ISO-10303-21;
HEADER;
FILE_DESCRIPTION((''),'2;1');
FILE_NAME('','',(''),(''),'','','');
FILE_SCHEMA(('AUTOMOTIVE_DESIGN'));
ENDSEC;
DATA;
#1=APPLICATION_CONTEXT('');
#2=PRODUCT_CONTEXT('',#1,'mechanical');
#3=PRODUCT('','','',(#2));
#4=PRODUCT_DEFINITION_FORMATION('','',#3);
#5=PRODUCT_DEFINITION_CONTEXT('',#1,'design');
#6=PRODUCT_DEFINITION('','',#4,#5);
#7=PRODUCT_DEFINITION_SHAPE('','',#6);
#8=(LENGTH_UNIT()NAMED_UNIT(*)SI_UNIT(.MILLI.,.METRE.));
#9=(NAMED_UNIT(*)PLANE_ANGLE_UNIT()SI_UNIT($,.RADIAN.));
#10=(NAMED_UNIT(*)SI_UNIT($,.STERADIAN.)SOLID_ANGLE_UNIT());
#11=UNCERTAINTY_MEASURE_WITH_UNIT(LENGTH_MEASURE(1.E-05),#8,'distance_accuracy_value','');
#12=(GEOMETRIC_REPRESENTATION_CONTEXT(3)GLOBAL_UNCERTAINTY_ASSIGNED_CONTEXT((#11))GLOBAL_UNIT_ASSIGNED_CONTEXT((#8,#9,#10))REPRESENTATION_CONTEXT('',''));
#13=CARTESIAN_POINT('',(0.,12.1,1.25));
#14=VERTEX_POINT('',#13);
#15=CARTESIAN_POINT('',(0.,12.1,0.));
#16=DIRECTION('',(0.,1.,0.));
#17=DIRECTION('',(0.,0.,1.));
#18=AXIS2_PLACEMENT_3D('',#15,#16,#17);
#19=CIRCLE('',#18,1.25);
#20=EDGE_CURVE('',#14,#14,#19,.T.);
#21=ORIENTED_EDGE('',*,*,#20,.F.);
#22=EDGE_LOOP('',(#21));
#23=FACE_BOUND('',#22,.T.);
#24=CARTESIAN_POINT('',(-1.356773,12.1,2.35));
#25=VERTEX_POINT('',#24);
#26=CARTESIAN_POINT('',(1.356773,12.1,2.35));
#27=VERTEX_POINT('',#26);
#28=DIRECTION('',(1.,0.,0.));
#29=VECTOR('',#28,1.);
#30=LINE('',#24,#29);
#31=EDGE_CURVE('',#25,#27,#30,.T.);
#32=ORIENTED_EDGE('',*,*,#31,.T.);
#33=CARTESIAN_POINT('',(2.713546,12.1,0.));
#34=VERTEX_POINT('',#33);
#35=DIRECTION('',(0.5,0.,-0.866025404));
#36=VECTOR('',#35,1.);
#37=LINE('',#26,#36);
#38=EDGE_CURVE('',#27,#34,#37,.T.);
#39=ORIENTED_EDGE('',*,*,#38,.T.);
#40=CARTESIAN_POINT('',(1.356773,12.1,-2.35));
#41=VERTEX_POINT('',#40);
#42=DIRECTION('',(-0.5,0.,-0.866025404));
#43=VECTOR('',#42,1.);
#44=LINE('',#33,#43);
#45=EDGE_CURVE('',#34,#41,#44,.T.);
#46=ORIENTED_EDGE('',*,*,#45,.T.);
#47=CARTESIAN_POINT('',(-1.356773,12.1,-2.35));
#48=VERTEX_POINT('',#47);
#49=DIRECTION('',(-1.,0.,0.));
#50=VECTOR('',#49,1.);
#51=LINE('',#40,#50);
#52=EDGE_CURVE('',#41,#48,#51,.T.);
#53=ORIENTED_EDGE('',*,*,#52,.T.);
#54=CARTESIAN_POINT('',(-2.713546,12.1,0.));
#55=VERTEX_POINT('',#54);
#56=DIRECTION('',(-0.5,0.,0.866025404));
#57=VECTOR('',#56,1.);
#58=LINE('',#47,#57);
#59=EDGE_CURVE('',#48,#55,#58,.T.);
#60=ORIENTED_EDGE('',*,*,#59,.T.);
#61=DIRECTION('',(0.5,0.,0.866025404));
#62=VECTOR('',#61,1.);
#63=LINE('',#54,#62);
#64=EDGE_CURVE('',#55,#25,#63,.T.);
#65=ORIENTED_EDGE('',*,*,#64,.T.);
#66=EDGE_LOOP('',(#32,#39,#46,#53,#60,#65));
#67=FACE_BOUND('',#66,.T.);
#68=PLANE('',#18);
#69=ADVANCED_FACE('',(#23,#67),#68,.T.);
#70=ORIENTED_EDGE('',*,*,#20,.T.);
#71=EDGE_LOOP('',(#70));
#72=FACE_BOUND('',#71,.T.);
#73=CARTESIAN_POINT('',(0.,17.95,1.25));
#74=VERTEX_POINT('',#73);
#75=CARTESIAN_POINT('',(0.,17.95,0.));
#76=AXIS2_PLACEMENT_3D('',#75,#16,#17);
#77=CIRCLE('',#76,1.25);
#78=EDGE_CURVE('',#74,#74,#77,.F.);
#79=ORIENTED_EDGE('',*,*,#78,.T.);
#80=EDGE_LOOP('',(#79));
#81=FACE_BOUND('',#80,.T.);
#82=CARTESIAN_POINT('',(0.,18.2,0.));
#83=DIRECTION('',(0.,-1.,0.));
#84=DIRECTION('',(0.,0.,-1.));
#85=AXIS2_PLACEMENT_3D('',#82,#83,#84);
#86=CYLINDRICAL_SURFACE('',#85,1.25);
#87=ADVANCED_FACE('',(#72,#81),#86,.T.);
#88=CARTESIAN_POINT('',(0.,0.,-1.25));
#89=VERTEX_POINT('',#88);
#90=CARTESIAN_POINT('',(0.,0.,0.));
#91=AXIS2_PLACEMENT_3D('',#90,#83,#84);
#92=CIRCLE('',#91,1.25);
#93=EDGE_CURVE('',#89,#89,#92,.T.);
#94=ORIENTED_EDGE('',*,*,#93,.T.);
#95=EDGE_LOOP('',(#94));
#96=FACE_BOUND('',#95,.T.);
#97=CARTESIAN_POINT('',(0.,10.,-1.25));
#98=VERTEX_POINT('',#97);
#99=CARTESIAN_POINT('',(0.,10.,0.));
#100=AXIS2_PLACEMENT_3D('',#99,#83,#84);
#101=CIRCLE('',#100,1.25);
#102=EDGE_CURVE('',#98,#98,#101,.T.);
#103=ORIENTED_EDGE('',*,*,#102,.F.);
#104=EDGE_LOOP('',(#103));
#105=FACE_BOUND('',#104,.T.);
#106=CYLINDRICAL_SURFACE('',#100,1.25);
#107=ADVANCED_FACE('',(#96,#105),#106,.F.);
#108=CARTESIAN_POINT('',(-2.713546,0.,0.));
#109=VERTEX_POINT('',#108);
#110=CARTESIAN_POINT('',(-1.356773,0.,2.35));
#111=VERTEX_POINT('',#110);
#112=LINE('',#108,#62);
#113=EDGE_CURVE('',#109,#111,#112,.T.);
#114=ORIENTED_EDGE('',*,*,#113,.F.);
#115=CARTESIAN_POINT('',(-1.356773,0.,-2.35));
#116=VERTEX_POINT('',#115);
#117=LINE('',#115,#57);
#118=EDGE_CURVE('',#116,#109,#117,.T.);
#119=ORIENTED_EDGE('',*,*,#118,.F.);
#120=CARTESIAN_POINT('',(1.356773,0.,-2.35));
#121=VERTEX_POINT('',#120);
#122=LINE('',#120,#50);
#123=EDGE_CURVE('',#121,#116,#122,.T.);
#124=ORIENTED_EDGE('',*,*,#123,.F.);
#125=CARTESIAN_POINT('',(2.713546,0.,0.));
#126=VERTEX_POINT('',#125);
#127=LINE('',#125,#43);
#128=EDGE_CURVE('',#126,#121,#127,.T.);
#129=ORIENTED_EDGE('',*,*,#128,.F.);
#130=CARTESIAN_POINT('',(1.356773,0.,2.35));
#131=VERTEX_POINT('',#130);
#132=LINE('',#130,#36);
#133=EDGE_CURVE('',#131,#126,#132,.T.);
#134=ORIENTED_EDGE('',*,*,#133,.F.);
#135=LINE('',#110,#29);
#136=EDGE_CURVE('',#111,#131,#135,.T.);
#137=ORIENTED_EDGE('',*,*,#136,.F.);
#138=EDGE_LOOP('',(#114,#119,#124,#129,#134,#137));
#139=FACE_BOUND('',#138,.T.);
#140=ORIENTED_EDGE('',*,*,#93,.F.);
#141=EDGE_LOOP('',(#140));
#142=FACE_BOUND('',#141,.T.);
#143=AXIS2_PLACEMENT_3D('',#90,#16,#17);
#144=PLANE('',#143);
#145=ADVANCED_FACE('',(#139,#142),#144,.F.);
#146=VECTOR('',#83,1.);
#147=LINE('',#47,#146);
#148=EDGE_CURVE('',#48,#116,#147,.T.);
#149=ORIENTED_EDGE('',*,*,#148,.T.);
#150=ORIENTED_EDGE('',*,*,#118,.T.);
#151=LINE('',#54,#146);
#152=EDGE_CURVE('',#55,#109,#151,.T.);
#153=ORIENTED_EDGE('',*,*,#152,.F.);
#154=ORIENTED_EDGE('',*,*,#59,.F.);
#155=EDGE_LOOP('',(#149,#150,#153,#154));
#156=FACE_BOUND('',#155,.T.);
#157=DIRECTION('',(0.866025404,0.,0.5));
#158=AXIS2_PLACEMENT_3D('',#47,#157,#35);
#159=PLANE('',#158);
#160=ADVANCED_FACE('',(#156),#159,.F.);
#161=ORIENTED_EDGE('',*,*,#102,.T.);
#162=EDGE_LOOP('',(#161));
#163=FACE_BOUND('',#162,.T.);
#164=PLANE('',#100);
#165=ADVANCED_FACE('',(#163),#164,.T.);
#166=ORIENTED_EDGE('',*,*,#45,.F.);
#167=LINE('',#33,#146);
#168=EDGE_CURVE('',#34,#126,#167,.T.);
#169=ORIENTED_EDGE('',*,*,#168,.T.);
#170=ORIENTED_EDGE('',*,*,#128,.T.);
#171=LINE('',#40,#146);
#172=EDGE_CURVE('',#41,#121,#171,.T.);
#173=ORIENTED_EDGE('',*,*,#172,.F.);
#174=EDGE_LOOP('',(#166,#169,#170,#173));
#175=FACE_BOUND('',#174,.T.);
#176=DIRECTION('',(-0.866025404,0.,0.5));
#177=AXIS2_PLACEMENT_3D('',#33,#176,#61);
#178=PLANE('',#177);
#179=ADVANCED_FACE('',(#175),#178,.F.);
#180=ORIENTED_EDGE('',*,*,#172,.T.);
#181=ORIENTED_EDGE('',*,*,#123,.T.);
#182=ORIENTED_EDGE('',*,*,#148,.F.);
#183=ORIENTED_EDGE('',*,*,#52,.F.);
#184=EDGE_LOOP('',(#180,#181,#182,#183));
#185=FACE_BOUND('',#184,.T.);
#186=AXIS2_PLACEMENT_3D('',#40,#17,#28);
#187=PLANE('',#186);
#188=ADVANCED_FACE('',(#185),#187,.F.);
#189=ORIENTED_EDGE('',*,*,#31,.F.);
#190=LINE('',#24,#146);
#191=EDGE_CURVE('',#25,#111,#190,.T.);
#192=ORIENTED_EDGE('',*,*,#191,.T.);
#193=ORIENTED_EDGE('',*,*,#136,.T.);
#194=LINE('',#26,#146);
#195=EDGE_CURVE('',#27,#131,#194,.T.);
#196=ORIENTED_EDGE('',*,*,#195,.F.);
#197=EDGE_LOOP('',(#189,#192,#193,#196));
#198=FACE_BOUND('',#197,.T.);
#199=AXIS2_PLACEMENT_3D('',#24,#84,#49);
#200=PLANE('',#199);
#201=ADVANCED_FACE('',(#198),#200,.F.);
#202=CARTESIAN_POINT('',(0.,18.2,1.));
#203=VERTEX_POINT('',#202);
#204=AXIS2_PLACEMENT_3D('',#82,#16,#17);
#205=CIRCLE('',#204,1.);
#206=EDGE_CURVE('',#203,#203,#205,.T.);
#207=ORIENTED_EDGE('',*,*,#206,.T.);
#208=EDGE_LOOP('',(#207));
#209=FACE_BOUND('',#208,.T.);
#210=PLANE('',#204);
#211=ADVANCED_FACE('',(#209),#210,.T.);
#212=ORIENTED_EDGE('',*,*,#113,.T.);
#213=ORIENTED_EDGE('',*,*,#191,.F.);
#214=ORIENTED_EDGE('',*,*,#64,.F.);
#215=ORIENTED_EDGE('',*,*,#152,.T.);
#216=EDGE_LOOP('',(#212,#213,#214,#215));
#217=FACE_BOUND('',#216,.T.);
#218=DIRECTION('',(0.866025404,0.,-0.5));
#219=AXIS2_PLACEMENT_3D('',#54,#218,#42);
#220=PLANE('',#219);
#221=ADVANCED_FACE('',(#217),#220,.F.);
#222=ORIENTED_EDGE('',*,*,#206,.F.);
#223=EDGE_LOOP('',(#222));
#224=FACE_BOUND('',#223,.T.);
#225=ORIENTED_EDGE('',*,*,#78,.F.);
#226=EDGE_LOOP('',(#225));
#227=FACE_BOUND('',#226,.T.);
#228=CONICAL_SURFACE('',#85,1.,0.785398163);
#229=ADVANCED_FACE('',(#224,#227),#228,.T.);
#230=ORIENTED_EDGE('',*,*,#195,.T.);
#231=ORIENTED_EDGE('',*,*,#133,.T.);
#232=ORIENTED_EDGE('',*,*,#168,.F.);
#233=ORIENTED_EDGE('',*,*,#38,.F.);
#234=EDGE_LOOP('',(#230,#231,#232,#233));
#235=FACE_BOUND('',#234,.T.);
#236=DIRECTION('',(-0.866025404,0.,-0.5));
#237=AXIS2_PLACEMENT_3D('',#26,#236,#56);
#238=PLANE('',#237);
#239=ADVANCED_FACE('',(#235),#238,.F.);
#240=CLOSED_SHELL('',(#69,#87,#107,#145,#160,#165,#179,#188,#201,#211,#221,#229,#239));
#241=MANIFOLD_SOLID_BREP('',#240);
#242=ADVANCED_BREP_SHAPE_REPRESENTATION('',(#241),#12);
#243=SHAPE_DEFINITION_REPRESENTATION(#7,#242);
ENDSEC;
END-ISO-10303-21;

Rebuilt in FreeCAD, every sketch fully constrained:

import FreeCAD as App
import Part
import Sketcher

V = App.Vector
Q = App.Units.Quantity


def edges_at(feature, points):
    """Names of the edges that pass closest to the given points."""
    edges = feature.Shape.Edges
    near = lambda p: min(range(len(edges)), key=lambda i: edges[i].distToShape(Part.Vertex(*p))[0])
    return sorted({f"Edge{near(p) + 1}" for p in points})

doc = App.newDocument("Part")
params = doc.addObject("Spreadsheet::Sheet", "Params")
for row, (alias, value) in enumerate([
    ("pad1_length", "12.1 mm"),
    ("sketch2_diameter", "2.5 mm"),
    ("pad2_length", "6.1 mm"),
    ("chamfer_size", "0.25 mm"),
    ("sketch3_diameter", "2.5 mm"),
    ("pocket1_length", "10 mm"),
], start=1):
    params.set(f"A{row}", alias)
    params.set(f"B{row}", "=" + value)
    params.setAlias(f"B{row}", alias)

body = doc.addObject("PartDesign::Body", "Body")

sketch1 = body.newObject("Sketcher::SketchObject", "Sketch")
sketch1.AttachmentSupport = (doc.getObject("XZ_Plane"), [""])
sketch1.MapMode = "FlatFace"
sketch1.addGeometry([
    Part.LineSegment(V(2.7, 0, 0), V(1.4, -2.4, 0)),
    Part.LineSegment(V(1.4, -2.4, 0), V(-1.4, -2.4, 0)),
    Part.LineSegment(V(-1.4, -2.4, 0), V(-2.7, 0, 0)),
    Part.LineSegment(V(-2.7, 0, 0), V(-1.4, 2.4, 0)),
    Part.LineSegment(V(-1.4, 2.4, 0), V(1.4, 2.4, 0)),
    Part.LineSegment(V(1.4, 2.4, 0), V(2.7, 0, 0)),
], False)
sketch1.addConstraint([
    Sketcher.Constraint("Coincident", 0, 2, 1, 1),
    Sketcher.Constraint("Coincident", 1, 2, 2, 1),
    Sketcher.Constraint("Coincident", 2, 2, 3, 1),
    Sketcher.Constraint("Coincident", 3, 2, 4, 1),
    Sketcher.Constraint("Coincident", 4, 2, 5, 1),
    Sketcher.Constraint("Coincident", 5, 2, 0, 1),
    Sketcher.Constraint("Horizontal", 1),
    Sketcher.Constraint("Horizontal", 4),
    Sketcher.Constraint("Symmetric", 0, 2, 3, 2, -1, 1),
    Sketcher.Constraint("Symmetric", 2, 2, 5, 2, -1, 1),
    Sketcher.Constraint("PointOnObject", 2, 2, -1),
    Sketcher.Constraint("Parallel", 2, 5),
    Sketcher.Constraint("Vertical", 1, 2, 3, 2),
    Sketcher.Constraint("Angle", 0, Q("-120 deg")),
    Sketcher.Constraint("DistanceY", 1, 2, 3, 2, Q("4.7 mm")),
    Sketcher.Constraint("DistanceX", 1, 2, 1, 1, Q("2.713546 mm")),
])
pad1 = body.newObject("PartDesign::Pad", "Pad")
pad1.Profile = sketch1
pad1.setExpression("Length", "Params.pad1_length")
pad1.Reversed = True

sketch2 = body.newObject("Sketcher::SketchObject", "Sketch001")
sketch2.AttachmentSupport = (doc.getObject("XZ_Plane"), [""])
sketch2.MapMode = "FlatFace"
sketch2.AttachmentOffset = App.Placement(V(0, 0, -12.1), App.Rotation())
sketch2.addGeometry(Part.Circle(V(0, 0, 0), V(0, 0, 1), 1.2), False)
sketch2.addConstraint([
    Sketcher.Constraint("Coincident", 0, 3, -1, 1),
    Sketcher.Constraint("Diameter", 0, Q("2.5 mm")),
])
sketch2.setExpression("Constraints[1]", "Params.sketch2_diameter")
pad2 = body.newObject("PartDesign::Pad", "Pad001")
pad2.Profile = sketch2
pad2.setExpression("Length", "Params.pad2_length")
pad2.Reversed = True
doc.recompute()

chamfer = body.newObject("PartDesign::Chamfer", "Chamfer")
chamfer.Base = (pad2, edges_at(pad2, [(0, 18.2, -1.25)]))
chamfer.setExpression("Size", "Params.chamfer_size")

sketch3 = body.newObject("Sketcher::SketchObject", "Sketch002")
sketch3.AttachmentSupport = (doc.getObject("XZ_Plane"), [""])
sketch3.MapMode = "FlatFace"
sketch3.addGeometry(Part.Circle(V(0, 0, 0), V(0, 0, 1), 1.2), False)
sketch3.addConstraint([
    Sketcher.Constraint("Coincident", 0, 3, -1, 1),
    Sketcher.Constraint("Diameter", 0, Q("2.5 mm")),
])
sketch3.setExpression("Constraints[1]", "Params.sketch3_diameter")
pocket1 = body.newObject("PartDesign::Pocket", "Pocket")
pocket1.Profile = sketch3
pocket1.setExpression("Length", "Params.pocket1_length")

doc.recompute()
